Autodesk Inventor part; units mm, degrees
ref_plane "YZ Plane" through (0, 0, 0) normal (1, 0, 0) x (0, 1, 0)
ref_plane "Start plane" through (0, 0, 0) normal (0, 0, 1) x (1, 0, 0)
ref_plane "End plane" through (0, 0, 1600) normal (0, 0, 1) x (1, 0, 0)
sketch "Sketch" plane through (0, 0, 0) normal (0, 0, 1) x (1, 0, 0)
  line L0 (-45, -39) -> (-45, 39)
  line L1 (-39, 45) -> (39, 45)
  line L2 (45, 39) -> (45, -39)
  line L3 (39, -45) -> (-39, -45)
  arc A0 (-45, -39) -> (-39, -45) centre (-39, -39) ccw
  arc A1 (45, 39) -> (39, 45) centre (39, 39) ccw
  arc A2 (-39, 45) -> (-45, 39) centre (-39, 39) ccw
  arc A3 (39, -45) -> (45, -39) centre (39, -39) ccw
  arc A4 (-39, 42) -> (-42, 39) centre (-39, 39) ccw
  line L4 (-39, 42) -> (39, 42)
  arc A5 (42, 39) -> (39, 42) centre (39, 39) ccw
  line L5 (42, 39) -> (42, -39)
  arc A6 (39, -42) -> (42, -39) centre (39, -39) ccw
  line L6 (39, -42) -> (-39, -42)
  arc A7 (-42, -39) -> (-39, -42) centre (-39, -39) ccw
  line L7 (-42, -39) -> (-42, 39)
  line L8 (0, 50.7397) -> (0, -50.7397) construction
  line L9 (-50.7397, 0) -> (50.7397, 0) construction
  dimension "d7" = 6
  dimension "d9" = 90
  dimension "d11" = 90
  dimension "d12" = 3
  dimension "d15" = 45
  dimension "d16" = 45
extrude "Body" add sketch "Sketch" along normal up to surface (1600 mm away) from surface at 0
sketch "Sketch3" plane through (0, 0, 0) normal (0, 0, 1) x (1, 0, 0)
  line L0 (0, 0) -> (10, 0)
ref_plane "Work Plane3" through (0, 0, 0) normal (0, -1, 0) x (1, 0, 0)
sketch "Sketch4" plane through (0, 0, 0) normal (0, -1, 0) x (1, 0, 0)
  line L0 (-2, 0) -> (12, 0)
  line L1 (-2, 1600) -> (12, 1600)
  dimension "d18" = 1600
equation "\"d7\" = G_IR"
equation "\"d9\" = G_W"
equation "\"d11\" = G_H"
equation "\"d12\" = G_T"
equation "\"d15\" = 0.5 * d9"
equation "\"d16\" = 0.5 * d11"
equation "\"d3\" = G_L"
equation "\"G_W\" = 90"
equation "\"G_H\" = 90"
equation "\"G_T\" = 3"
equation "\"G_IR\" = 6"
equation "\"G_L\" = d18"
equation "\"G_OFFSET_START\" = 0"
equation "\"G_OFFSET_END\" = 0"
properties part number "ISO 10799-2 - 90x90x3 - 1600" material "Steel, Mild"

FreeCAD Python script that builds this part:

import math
import FreeCAD as App
import Part
import Sketcher

doc = App.newDocument("Part")
body = doc.addObject("PartDesign::Body", "Body")

# Sketch on XY plane
sketch1 = body.newObject("Sketcher::SketchObject", "Sketch")
sketch1.AttachmentSupport = (doc.getObject("XY_Plane"), [""])
sketch1.MapMode = "FlatFace"
sketch1.addGeometry(Part.LineSegment(App.Vector(-45, 39, 0), App.Vector(-45, -39, 0)), False)
sketch1.addGeometry(Part.ArcOfCircle(Part.Circle(App.Vector(-39, -39, 0), App.Vector(0, 0, 1), 6), math.radians(180), math.radians(270)), False)
sketch1.addGeometry(Part.LineSegment(App.Vector(-39, -45, 0), App.Vector(39, -45, 0)), False)
sketch1.addGeometry(Part.ArcOfCircle(Part.Circle(App.Vector(39, -39, 0), App.Vector(0, 0, 1), 6), math.radians(-90), math.radians(0)), False)
sketch1.addGeometry(Part.LineSegment(App.Vector(45, -39, 0), App.Vector(45, 39, 0)), False)
sketch1.addGeometry(Part.ArcOfCircle(Part.Circle(App.Vector(39, 39, 0), App.Vector(0, 0, 1), 6), math.radians(0), math.radians(90)), False)
sketch1.addGeometry(Part.LineSegment(App.Vector(39, 45, 0), App.Vector(-39, 45, 0)), False)
sketch1.addGeometry(Part.ArcOfCircle(Part.Circle(App.Vector(-39, 39, 0), App.Vector(0, 0, 1), 6), math.radians(90), math.radians(180)), False)
sketch1.addGeometry(Part.ArcOfCircle(Part.Circle(App.Vector(-39, 39, 0), App.Vector(0, 0, 1), 3), math.radians(90), math.radians(180)), False)
sketch1.addGeometry(Part.LineSegment(App.Vector(-39, 42, 0), App.Vector(39, 42, 0)), False)
sketch1.addGeometry(Part.ArcOfCircle(Part.Circle(App.Vector(39, 39, 0), App.Vector(0, 0, 1), 3), math.radians(0), math.radians(90)), False)
sketch1.addGeometry(Part.LineSegment(App.Vector(42, 39, 0), App.Vector(42, -39, 0)), False)
sketch1.addGeometry(Part.ArcOfCircle(Part.Circle(App.Vector(39, -39, 0), App.Vector(0, 0, 1), 3), math.radians(-90), math.radians(0)), False)
sketch1.addGeometry(Part.LineSegment(App.Vector(39, -42, 0), App.Vector(-39, -42, 0)), False)
sketch1.addGeometry(Part.ArcOfCircle(Part.Circle(App.Vector(-39, -39, 0), App.Vector(0, 0, 1), 3), math.radians(180), math.radians(270)), False)
sketch1.addGeometry(Part.LineSegment(App.Vector(-42, -39, 0), App.Vector(-42, 39, 0)), False)
sketch1.addConstraint(Sketcher.Constraint("Tangent", 0, 2, 1, 1))
sketch1.addConstraint(Sketcher.Constraint("Tangent", 1, 2, 2, 1))
sketch1.addConstraint(Sketcher.Constraint("Tangent", 2, 2, 3, 1))
sketch1.addConstraint(Sketcher.Constraint("Tangent", 3, 2, 4, 1))
sketch1.addConstraint(Sketcher.Constraint("Tangent", 4, 2, 5, 1))
sketch1.addConstraint(Sketcher.Constraint("Tangent", 5, 2, 6, 1))
sketch1.addConstraint(Sketcher.Constraint("Tangent", 6, 2, 7, 1))
sketch1.addConstraint(Sketcher.Constraint("Tangent", 7, 2, 0, 1))
sketch1.addConstraint(Sketcher.Constraint("Tangent", 8, 1, 9, 1))
sketch1.addConstraint(Sketcher.Constraint("Tangent", 9, 2, 10, 2))
sketch1.addConstraint(Sketcher.Constraint("Tangent", 10, 1, 11, 1))
sketch1.addConstraint(Sketcher.Constraint("Tangent", 11, 2, 12, 2))
sketch1.addConstraint(Sketcher.Constraint("Tangent", 12, 1, 13, 1))
sketch1.addConstraint(Sketcher.Constraint("Tangent", 13, 2, 14, 2))
sketch1.addConstraint(Sketcher.Constraint("Tangent", 14, 1, 15, 1))
sketch1.addConstraint(Sketcher.Constraint("Tangent", 15, 2, 8, 2))
sketch1.addConstraint(Sketcher.Constraint("Vertical", 0))
sketch1.addConstraint(Sketcher.Constraint("Horizontal", 2))
sketch1.addConstraint(Sketcher.Constraint("Vertical", 4))
sketch1.addConstraint(Sketcher.Constraint("Horizontal", 6))
sketch1.addConstraint(Sketcher.Constraint("Horizontal", 9))
sketch1.addConstraint(Sketcher.Constraint("Vertical", 11))
sketch1.addConstraint(Sketcher.Constraint("Horizontal", 13))
sketch1.addConstraint(Sketcher.Constraint("Vertical", 15))
sketch1.addConstraint(Sketcher.Constraint("Coincident", 8, 3, 7, 3))
sketch1.addConstraint(Sketcher.Constraint("Coincident", 10, 3, 5, 3))
sketch1.addConstraint(Sketcher.Constraint("Coincident", 12, 3, 3, 3))
sketch1.addConstraint(Sketcher.Constraint("Equal", 1, 3))
sketch1.addConstraint(Sketcher.Constraint("Equal", 3, 5))
sketch1.addConstraint(Sketcher.Constraint("Equal", 5, 7))
sketch1.addConstraint(Sketcher.Constraint("Equal", 12, 14))
sketch1.addConstraint(Sketcher.Constraint("Symmetric", 1, 3, 5, 3, -1, 1))
sketch1.addConstraint(Sketcher.Constraint("Equal", 13, 0))
sketch1.addConstraint(Sketcher.Constraint("Radius", 1, 6.0))
sketch1.addConstraint(Sketcher.Constraint("Radius", 8, 3.0))
sketch1.addConstraint(Sketcher.Constraint("DistanceX", 0, 2, -1, 1, 45.0))
pad1 = body.newObject("PartDesign::Pad", "Pad")
pad1.Profile = sketch1
pad1.Length = 1600

doc.recompute()
